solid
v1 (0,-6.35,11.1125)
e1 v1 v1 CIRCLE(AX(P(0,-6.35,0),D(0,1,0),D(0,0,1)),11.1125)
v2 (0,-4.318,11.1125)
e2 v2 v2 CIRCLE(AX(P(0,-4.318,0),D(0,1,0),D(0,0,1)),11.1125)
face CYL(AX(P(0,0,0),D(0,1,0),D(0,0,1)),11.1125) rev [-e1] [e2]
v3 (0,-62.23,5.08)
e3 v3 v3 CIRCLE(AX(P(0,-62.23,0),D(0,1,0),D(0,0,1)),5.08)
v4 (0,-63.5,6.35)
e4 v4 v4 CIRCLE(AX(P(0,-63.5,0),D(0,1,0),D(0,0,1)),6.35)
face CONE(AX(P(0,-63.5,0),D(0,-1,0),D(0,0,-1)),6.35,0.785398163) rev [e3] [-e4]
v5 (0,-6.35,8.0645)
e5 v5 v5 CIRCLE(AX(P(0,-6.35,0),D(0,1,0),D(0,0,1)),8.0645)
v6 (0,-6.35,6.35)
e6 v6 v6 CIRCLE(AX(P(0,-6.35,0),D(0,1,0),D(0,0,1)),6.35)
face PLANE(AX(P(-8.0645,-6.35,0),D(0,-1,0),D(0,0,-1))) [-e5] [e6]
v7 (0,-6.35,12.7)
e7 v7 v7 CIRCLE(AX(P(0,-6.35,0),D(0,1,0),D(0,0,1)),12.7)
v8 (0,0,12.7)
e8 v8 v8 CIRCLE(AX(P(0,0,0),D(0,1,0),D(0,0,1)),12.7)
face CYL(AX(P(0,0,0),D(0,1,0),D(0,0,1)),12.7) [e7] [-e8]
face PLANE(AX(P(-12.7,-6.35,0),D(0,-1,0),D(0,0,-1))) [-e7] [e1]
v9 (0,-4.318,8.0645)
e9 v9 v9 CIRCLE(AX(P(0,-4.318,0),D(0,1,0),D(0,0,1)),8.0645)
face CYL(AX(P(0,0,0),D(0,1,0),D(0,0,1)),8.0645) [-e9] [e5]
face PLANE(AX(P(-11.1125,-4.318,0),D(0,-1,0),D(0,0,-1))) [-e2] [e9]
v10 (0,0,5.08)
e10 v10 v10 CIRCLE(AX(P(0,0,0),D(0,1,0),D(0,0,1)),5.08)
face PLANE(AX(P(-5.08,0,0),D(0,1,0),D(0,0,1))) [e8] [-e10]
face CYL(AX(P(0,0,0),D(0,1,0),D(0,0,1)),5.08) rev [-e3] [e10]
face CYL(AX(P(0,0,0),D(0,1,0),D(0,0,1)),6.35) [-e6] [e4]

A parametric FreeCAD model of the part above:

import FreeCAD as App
import Part
import Sketcher
Q = App.Units.Quantity


def add_polygon(sketch, points):
    """Adds a closed chain of lines whose ends are joined by coincident constraints."""
    first, n = sketch.GeometryCount, len(points)
    for a, b in zip(points, points[1:] + points[:1]):
        sketch.addGeometry(Part.LineSegment(App.Vector(*a, 0), App.Vector(*b, 0)), False)
    for i in range(n):
        sketch.addConstraint(Sketcher.Constraint("Coincident", first + i, 2, first + (i + 1) % n, 1))

doc = App.newDocument("Part")
body = doc.addObject("PartDesign::Body", "Body")

# Sketch on XY plane
sketch1 = body.newObject("Sketcher::SketchObject", "Sketch")
sketch1.AttachmentSupport = (doc.getObject("XY_Plane"), [""])
sketch1.MapMode = "FlatFace"
add_polygon(sketch1, [(-5.08, 0), (-12.7, 0), (-12.7, -6.35), (-11.1125, -6.35), (-11.1125, -4.318), (-8.0645, -4.318), (-8.0645, -6.35), (-6.35, -6.35), (-6.35, -63.5), (-5.08, -62.23)])  # lines 0-9
sketch1.addConstraint(Sketcher.Constraint("Horizontal", 0))
sketch1.addConstraint(Sketcher.Constraint("Vertical", 1))
sketch1.addConstraint(Sketcher.Constraint("Horizontal", 2))
sketch1.addConstraint(Sketcher.Constraint("Vertical", 3))
sketch1.addConstraint(Sketcher.Constraint("Horizontal", 4))
sketch1.addConstraint(Sketcher.Constraint("Vertical", 5))
sketch1.addConstraint(Sketcher.Constraint("Horizontal", 6))
sketch1.addConstraint(Sketcher.Constraint("Vertical", 7))
sketch1.addConstraint(Sketcher.Constraint("Vertical", 9))
sketch1.addConstraint(Sketcher.Constraint("PointOnObject", 0, 2, -1))
sketch1.addConstraint(Sketcher.Constraint("Horizontal", 2, 2, 5, 2))
sketch1.addConstraint(Sketcher.Constraint("DistanceX", 0, 2, 0, 1, Q("0.3 in")))
sketch1.addConstraint(Sketcher.Constraint("Angle", 8, Q("45 deg")))
sketch1.addConstraint(Sketcher.Constraint("DistanceX", 4, 1, 4, 2, Q("0.12 in")))
sketch1.addConstraint(Sketcher.Constraint("DistanceY", 1, 2, 1, 1, Q("0.25 in")))
sketch1.addConstraint(Sketcher.Constraint("DistanceY", 3, 1, 3, 2, Q("0.08 in")))
sketch1.addConstraint(Sketcher.Constraint("DistanceY", 7, 2, 7, 1, Q("2.25 in")))
sketch1.addConstraint(Sketcher.Constraint("DistanceY", 9, 1, 9, 2, Q("2.45 in")))
sketch1.addConstraint(Sketcher.Constraint("DistanceX", 0, 2, -1, 1, Q("0.5 in")))
sketch1.addConstraint(Sketcher.Constraint("DistanceX", 2, 1, 2, 2, Q("0.0625 in")))
revolution = body.newObject("PartDesign::Revolution", "Revolution")
revolution.Profile = sketch1
revolution.ReferenceAxis = (sketch1, ["V_Axis"])
revolution.Angle = 360

doc.recompute()
